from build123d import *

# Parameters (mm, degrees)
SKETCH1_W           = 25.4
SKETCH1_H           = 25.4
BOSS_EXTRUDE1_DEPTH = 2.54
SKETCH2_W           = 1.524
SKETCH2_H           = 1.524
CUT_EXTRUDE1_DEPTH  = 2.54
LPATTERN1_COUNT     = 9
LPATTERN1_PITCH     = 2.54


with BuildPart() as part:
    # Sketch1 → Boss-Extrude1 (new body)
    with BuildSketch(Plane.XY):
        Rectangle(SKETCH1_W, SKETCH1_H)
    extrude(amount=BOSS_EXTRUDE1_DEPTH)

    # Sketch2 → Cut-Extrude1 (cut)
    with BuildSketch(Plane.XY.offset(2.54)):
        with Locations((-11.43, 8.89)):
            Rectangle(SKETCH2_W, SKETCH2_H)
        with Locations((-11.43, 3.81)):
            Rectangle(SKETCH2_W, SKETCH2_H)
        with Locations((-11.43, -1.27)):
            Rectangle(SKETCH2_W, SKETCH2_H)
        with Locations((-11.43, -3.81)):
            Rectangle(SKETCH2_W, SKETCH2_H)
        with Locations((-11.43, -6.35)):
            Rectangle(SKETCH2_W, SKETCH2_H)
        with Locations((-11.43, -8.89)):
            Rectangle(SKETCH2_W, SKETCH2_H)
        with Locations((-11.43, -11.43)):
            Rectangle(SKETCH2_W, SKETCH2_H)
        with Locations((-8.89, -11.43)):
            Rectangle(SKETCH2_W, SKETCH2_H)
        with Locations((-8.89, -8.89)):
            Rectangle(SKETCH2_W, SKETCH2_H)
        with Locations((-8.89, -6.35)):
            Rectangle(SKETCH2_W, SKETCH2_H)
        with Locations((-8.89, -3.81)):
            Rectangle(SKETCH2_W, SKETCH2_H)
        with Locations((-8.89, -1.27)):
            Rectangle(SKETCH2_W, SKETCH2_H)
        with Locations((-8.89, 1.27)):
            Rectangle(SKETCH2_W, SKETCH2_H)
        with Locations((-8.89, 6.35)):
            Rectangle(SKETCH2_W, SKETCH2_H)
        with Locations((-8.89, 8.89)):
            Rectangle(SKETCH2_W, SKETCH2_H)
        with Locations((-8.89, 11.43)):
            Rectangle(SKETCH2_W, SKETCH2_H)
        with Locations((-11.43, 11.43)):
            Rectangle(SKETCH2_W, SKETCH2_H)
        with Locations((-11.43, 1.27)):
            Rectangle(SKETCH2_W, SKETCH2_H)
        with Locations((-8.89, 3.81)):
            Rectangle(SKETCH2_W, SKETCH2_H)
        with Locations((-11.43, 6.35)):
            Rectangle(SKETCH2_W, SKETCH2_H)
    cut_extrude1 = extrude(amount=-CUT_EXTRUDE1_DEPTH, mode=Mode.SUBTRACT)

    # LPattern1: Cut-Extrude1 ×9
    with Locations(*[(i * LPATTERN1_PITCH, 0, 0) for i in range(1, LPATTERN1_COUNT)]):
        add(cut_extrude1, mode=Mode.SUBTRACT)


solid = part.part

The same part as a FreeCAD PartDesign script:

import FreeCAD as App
import Part
import Sketcher
from FreeCAD import Vector
Q = App.Units.Quantity


def add_polygon(sketch, points):
    """Adds a closed chain of lines whose ends are joined by coincident constraints."""
    first, n = sketch.GeometryCount, len(points)
    for a, b in zip(points, points[1:] + points[:1]):
        sketch.addGeometry(Part.LineSegment(App.Vector(*a, 0), App.Vector(*b, 0)), False)
    for i in range(n):
        sketch.addConstraint(Sketcher.Constraint("Coincident", first + i, 2, first + (i + 1) % n, 1))

doc = App.newDocument("Part")
body = doc.addObject("PartDesign::Body", "Body")

sketch1 = body.newObject("Sketcher::SketchObject", "Sketch")
sketch1.AttachmentSupport = (doc.getObject("XY_Plane"), [""])
sketch1.MapMode = "FlatFace"
add_polygon(sketch1, [(-13, 13), (-13, -13), (13, -13), (13, 13)])
sketch1.addConstraint([
    Sketcher.Constraint("Vertical", 0),
    Sketcher.Constraint("Horizontal", 1),
    Sketcher.Constraint("Vertical", 2),
    Sketcher.Constraint("Horizontal", 3),
    Sketcher.Constraint("Symmetric", 0, 2, 2, 2, -1, 1),
    Sketcher.Constraint("Equal", 3, 0),
    Sketcher.Constraint("DistanceX", 1, 1, 1, 2, Q("1 in")),
])
pad1 = body.newObject("PartDesign::Pad", "Pad")
pad1.Profile = sketch1
pad1.Length = Q("0.1 in")

sketch2 = body.newObject("Sketcher::SketchObject", "Sketch001")
sketch2.AttachmentSupport = (doc.getObject("XY_Plane"), [""])
sketch2.MapMode = "FlatFace"
sketch2.AttachmentOffset = App.Placement(Vector(0, 0, 0.1 * 25.4), App.Rotation())
add_polygon(sketch2, [(-12.2, 9.7), (-12.2, 8.1), (-10.7, 8.1), (-10.7, 9.7)])
add_polygon(sketch2, [(-12.2, 4.6), (-12.2, 3), (-10.7, 3), (-10.7, 4.6)])
add_polygon(sketch2, [(-12.2, -0.5), (-12.2, -2), (-10.7, -2), (-10.7, -0.5)])
add_polygon(sketch2, [(-12.2, -3), (-12.2, -4.6), (-10.7, -4.6), (-10.7, -3)])
add_polygon(sketch2, [(-12.2, -5.6), (-12.2, -7.1), (-10.7, -7.1), (-10.7, -5.6)])
add_polygon(sketch2, [(-12.2, -8.1), (-12.2, -9.7), (-10.7, -9.7), (-10.7, -8.1)])
add_polygon(sketch2, [(-12.2, -10.7), (-12.2, -12.2), (-10.7, -12.2), (-10.7, -10.7)])
add_polygon(sketch2, [(-9.7, -10.7), (-9.7, -12.2), (-8.1, -12.2), (-8.1, -10.7)])
add_polygon(sketch2, [(-9.7, -8.1), (-9.7, -9.7), (-8.1, -9.7), (-8.1, -8.1)])
add_polygon(sketch2, [(-9.7, -5.6), (-9.7, -7.1), (-8.1, -7.1), (-8.1, -5.6)])
add_polygon(sketch2, [(-9.7, -3), (-9.7, -4.6), (-8.1, -4.6), (-8.1, -3)])
add_polygon(sketch2, [(-9.7, -0.5), (-9.7, -2), (-8.1, -2), (-8.1, -0.5)])
add_polygon(sketch2, [(-9.7, 2), (-9.7, 0.5), (-8.1, 0.5), (-8.1, 2)])
add_polygon(sketch2, [(-9.7, 7.1), (-9.7, 5.6), (-8.1, 5.6), (-8.1, 7.1)])
add_polygon(sketch2, [(-9.7, 9.7), (-9.7, 8.1), (-8.1, 8.1), (-8.1, 9.7)])
add_polygon(sketch2, [(-9.7, 12.2), (-9.7, 10.7), (-8.1, 10.7), (-8.1, 12.2)])
add_polygon(sketch2, [(-12.2, 12.2), (-12.2, 10.7), (-10.7, 10.7), (-10.7, 12.2)])
add_polygon(sketch2, [(-12.2, 2), (-12.2, 0.5), (-10.7, 0.5), (-10.7, 2)])
add_polygon(sketch2, [(-9.7, 4.6), (-9.7, 3), (-8.1, 3), (-8.1, 4.6)])
add_polygon(sketch2, [(-12.2, 7.1), (-12.2, 5.6), (-10.7, 5.6), (-10.7, 7.1)])
sketch2.addConstraint([
    Sketcher.Constraint("Vertical", 0),
    Sketcher.Constraint("Horizontal", 1),
    Sketcher.Constraint("Vertical", 2),
    Sketcher.Constraint("Horizontal", 3),
    Sketcher.Constraint("Vertical", 4),
    Sketcher.Constraint("Horizontal", 5),
    Sketcher.Constraint("Vertical", 6),
    Sketcher.Constraint("Horizontal", 7),
    Sketcher.Constraint("Vertical", 8),
    Sketcher.Constraint("Horizontal", 9),
    Sketcher.Constraint("Vertical", 10),
    Sketcher.Constraint("Horizontal", 11),
    Sketcher.Constraint("Vertical", 12),
    Sketcher.Constraint("Horizontal", 13),
    Sketcher.Constraint("Vertical", 14),
    Sketcher.Constraint("Horizontal", 15),
    Sketcher.Constraint("Vertical", 16),
    Sketcher.Constraint("Horizontal", 17),
    Sketcher.Constraint("Vertical", 18),
    Sketcher.Constraint("Horizontal", 19),
    Sketcher.Constraint("Vertical", 20),
    Sketcher.Constraint("Horizontal", 21),
    Sketcher.Constraint("Vertical", 22),
    Sketcher.Constraint("Horizontal", 23),
    Sketcher.Constraint("Vertical", 24),
    Sketcher.Constraint("Horizontal", 25),
    Sketcher.Constraint("Vertical", 26),
    Sketcher.Constraint("Horizontal", 27),
    Sketcher.Constraint("Vertical", 28),
    Sketcher.Constraint("Horizontal", 29),
    Sketcher.Constraint("Vertical", 30),
    Sketcher.Constraint("Horizontal", 31),
    Sketcher.Constraint("Vertical", 32),
    Sketcher.Constraint("Horizontal", 33),
    Sketcher.Constraint("Vertical", 34),
    Sketcher.Constraint("Horizontal", 35),
    Sketcher.Constraint("Vertical", 36),
    Sketcher.Constraint("Horizontal", 37),
    Sketcher.Constraint("Vertical", 38),
    Sketcher.Constraint("Horizontal", 39),
    Sketcher.Constraint("Vertical", 40),
    Sketcher.Constraint("Horizontal", 41),
    Sketcher.Constraint("Vertical", 42),
    Sketcher.Constraint("Horizontal", 43),
    Sketcher.Constraint("Vertical", 44),
    Sketcher.Constraint("Horizontal", 45),
    Sketcher.Constraint("Vertical", 46),
    Sketcher.Constraint("Horizontal", 47),
    Sketcher.Constraint("Vertical", 48),
    Sketcher.Constraint("Horizontal", 49),
    Sketcher.Constraint("Vertical", 50),
    Sketcher.Constraint("Horizontal", 51),
    Sketcher.Constraint("Vertical", 52),
    Sketcher.Constraint("Horizontal", 53),
    Sketcher.Constraint("Vertical", 54),
    Sketcher.Constraint("Horizontal", 55),
    Sketcher.Constraint("Vertical", 56),
    Sketcher.Constraint("Horizontal", 57),
    Sketcher.Constraint("Vertical", 58),
    Sketcher.Constraint("Horizontal", 59),
    Sketcher.Constraint("Vertical", 60),
    Sketcher.Constraint("Horizontal", 61),
    Sketcher.Constraint("Vertical", 62),
    Sketcher.Constraint("Horizontal", 63),
    Sketcher.Constraint("Vertical", 64),
    Sketcher.Constraint("Horizontal", 65),
    Sketcher.Constraint("Vertical", 66),
    Sketcher.Constraint("Horizontal", 67),
    Sketcher.Constraint("Vertical", 68),
    Sketcher.Constraint("Horizontal", 69),
    Sketcher.Constraint("Vertical", 70),
    Sketcher.Constraint("Horizontal", 71),
    Sketcher.Constraint("Vertical", 72),
    Sketcher.Constraint("Horizontal", 73),
    Sketcher.Constraint("Vertical", 74),
    Sketcher.Constraint("Horizontal", 75),
    Sketcher.Constraint("Vertical", 76),
    Sketcher.Constraint("Horizontal", 77),
    Sketcher.Constraint("Vertical", 78),
    Sketcher.Constraint("Horizontal", 79),
    Sketcher.Constraint("Symmetric", 7, 2, 12, 2, -1),
    Sketcher.Constraint("Symmetric", 5, 2, 14, 2, -1),
    Sketcher.Constraint("Symmetric", 3, 2, 20, 2, -1),
    Sketcher.Constraint("Symmetric", 1, 2, 22, 2, -1),
    Sketcher.Constraint("Symmetric", 47, 2, 48, 2, -1),
    Sketcher.Constraint("Symmetric", 45, 2, 50, 2, -1),
    Sketcher.Constraint("Symmetric", 39, 2, 52, 2, -1),
    Sketcher.Constraint("Symmetric", 37, 2, 54, 2, -1),
    Sketcher.Constraint("Symmetric", 35, 2, 56, 2, -1),
    Sketcher.Constraint("Symmetric", 33, 2, 58, 2, -1),
    Sketcher.Constraint("Symmetric", 31, 2, 60, 2, -1),
    Sketcher.Constraint("Symmetric", 29, 2, 62, 2, -1),
    Sketcher.Constraint("Symmetric", 27, 2, 64, 2, -1),
    Sketcher.Constraint("Symmetric", 25, 2, 66, 2, -1),
    Sketcher.Constraint("Symmetric", 11, 2, 68, 2, -1),
    Sketcher.Constraint("Symmetric", 9, 2, 70, 2, -1),
    Sketcher.Constraint("Symmetric", 43, 2, 72, 2, -1),
    Sketcher.Constraint("Symmetric", 41, 2, 74, 2, -1),
    Sketcher.Constraint("Symmetric", 19, 2, 76, 2, -1),
    Sketcher.Constraint("Symmetric", 17, 2, 78, 2, -1),
    Sketcher.Constraint("Horizontal", 25, 2, 28, 2),
    Sketcher.Constraint("Horizontal", 27, 2, 30, 2),
    Sketcher.Constraint("Horizontal", 21, 2, 32, 2),
    Sketcher.Constraint("Horizontal", 23, 2, 34, 2),
    Sketcher.Constraint("Horizontal", 17, 2, 36, 2),
    Sketcher.Constraint("Horizontal", 19, 2, 38, 2),
    Sketcher.Constraint("Horizontal", 13, 2, 40, 2),
    Sketcher.Constraint("Horizontal", 15, 2, 42, 2),
    Sketcher.Constraint("Horizontal", 9, 2, 44, 2),
    Sketcher.Constraint("Horizontal", 11, 2, 46, 2),
    Sketcher.Constraint("Vertical", 3, 2, 4, 2),
    Sketcher.Constraint("Vertical", 2, 2, 5, 2),
    Sketcher.Constraint("Vertical", 7, 2, 8, 2),
    Sketcher.Constraint("Vertical", 6, 2, 9, 2),
    Sketcher.Constraint("Vertical", 15, 2, 16, 2),
    Sketcher.Constraint("Vertical", 14, 2, 17, 2),
    Sketcher.Constraint("Vertical", 23, 2, 24, 2),
    Sketcher.Constraint("Vertical", 22, 2, 25, 2),
    Sketcher.Constraint("Vertical", 31, 2, 32, 2),
    Sketcher.Constraint("Vertical", 30, 2, 33, 2),
    Sketcher.Constraint("Vertical", 35, 2, 36, 2),
    Sketcher.Constraint("Vertical", 34, 2, 37, 2),
    Sketcher.Constraint("Vertical", 39, 2, 40, 2),
    Sketcher.Constraint("Vertical", 38, 2, 41, 2),
    Sketcher.Constraint("Vertical", 43, 2, 44, 2),
    Sketcher.Constraint("Vertical", 42, 2, 45, 2),
    Sketcher.Constraint("Equal", 27, 29),
    Sketcher.Constraint("Equal", 79, 0),
    Sketcher.Constraint("Equal", 2, 4),
    Sketcher.Constraint("Equal", 6, 8),
    Sketcher.Constraint("Equal", 14, 16),
    Sketcher.Constraint("Equal", 22, 24),
    Sketcher.Constraint("DistanceX", 1, 1, 1, 2, Q("0.06 in")),
    Sketcher.Constraint("DistanceX", 0, 2, -1, 1, Q("0.48 in")),
    Sketcher.Constraint("DistanceY", -1, 1, 0, 2, Q("0.32 in")),
    Sketcher.Constraint("DistanceY", -1, 1, 4, 2, Q("0.12 in")),
    Sketcher.Constraint("DistanceY", 8, 2, -1, 1, Q("0.08 in")),
    Sketcher.Constraint("DistanceY", 16, 2, -1, 1, Q("0.28 in")),
    Sketcher.Constraint("DistanceY", 24, 2, -1, 1, Q("0.48 in")),
    Sketcher.Constraint("DistanceX", 28, 2, -1, 1, Q("0.38 in")),
])
pocket1 = body.newObject("PartDesign::Pocket", "Pocket")
pocket1.Profile = sketch2
pocket1.Length = Q("0.1 in")
doc.recompute()

linearpattern = body.newObject("PartDesign::LinearPattern", "LinearPattern")
linearpattern.Originals = [pocket1]
linearpattern.Direction = (doc.getObject("X_Axis"), [""])
linearpattern.Mode = "offset"
linearpattern.Offset = Q("0.1 in")
linearpattern.Occurrences = 9
body.Tip = linearpattern

doc.recompute()
